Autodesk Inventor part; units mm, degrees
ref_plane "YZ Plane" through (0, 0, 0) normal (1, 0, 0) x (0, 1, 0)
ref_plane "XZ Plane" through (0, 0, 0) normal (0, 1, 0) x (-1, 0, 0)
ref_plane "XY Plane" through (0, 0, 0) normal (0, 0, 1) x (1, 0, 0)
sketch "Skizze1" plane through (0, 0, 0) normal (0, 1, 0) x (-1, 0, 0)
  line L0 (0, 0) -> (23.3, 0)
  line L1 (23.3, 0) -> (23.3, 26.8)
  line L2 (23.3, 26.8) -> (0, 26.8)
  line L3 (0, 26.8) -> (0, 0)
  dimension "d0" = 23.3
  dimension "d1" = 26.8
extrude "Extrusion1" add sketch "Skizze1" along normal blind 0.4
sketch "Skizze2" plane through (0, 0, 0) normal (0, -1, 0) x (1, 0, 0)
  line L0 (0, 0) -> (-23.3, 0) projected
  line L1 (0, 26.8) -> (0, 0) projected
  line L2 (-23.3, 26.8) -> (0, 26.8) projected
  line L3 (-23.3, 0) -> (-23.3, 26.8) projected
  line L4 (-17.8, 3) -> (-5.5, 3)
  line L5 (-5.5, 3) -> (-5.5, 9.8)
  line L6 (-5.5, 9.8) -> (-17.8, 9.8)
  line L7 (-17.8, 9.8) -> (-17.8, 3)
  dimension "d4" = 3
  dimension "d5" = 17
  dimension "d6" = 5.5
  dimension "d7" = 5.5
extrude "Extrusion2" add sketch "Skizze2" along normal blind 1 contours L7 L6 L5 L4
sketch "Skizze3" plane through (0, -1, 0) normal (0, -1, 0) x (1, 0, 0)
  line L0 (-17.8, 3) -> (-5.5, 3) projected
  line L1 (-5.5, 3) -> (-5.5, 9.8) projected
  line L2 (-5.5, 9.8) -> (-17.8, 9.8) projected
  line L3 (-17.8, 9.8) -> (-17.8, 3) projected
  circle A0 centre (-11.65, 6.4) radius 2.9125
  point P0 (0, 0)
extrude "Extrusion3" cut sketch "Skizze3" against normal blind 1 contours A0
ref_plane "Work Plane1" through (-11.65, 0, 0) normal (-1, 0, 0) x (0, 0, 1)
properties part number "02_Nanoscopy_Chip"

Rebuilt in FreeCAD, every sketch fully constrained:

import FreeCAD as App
import Part
import Sketcher

V = App.Vector
Q = App.Units.Quantity

doc = App.newDocument("Part")
body = doc.addObject("PartDesign::Body", "Body")

# Sketch on XZ plane
sketch1 = body.newObject("Sketcher::SketchObject", "Sketch")
sketch1.AttachmentSupport = (doc.getObject("XZ_Plane"), [""])
sketch1.MapMode = "FlatFace"
sketch1.addGeometry([
    Part.LineSegment(V(0, 26.8, 0), V(0, 0, 0)),
    Part.LineSegment(V(0, 0, 0), V(-23.3, 0, 0)),
    Part.LineSegment(V(-23.3, 0, 0), V(-23.3, 26.8, 0)),
    Part.LineSegment(V(-23.3, 26.8, 0), V(0, 26.8, 0)),
], False)
sketch1.addConstraint([
    Sketcher.Constraint("Coincident", 0, 2, 1, 1),
    Sketcher.Constraint("Coincident", 1, 2, 2, 1),
    Sketcher.Constraint("Coincident", 2, 2, 3, 1),
    Sketcher.Constraint("Coincident", 3, 2, 0, 1),
    Sketcher.Constraint("Vertical", 0),
    Sketcher.Constraint("Horizontal", 1),
    Sketcher.Constraint("Vertical", 2),
    Sketcher.Constraint("Horizontal", 3),
    Sketcher.Constraint("Coincident", 0, 2, -1, 1),
    Sketcher.Constraint("DistanceX", 1, 2, 1, 1, Q("23.3 mm")),
    Sketcher.Constraint("DistanceY", 0, 2, 0, 1, Q("26.8 mm")),
])
pad1 = body.newObject("PartDesign::Pad", "Pad")
pad1.Profile = sketch1
pad1.Length = 0.4
pad1.Reversed = True

# Sketch on XZ plane
sketch2 = body.newObject("Sketcher::SketchObject", "Sketch001")
sketch2.AttachmentSupport = (doc.getObject("XZ_Plane"), [""])
sketch2.MapMode = "FlatFace"
sketch2.addGeometry([
    Part.LineSegment(V(-17.8, 9.8, 0), V(-17.8, 3, 0)),
    Part.LineSegment(V(-17.8, 3, 0), V(-5.5, 3, 0)),
    Part.LineSegment(V(-5.5, 3, 0), V(-5.5, 9.8, 0)),
    Part.LineSegment(V(-5.5, 9.8, 0), V(-17.8, 9.8, 0)),
], False)
sketch2.addConstraint([
    Sketcher.Constraint("Coincident", 0, 2, 1, 1),
    Sketcher.Constraint("Coincident", 1, 2, 2, 1),
    Sketcher.Constraint("Coincident", 2, 2, 3, 1),
    Sketcher.Constraint("Coincident", 3, 2, 0, 1),
    Sketcher.Constraint("Vertical", 0),
    Sketcher.Constraint("Horizontal", 1),
    Sketcher.Constraint("Vertical", 2),
    Sketcher.Constraint("Horizontal", 3),
    Sketcher.Constraint("DistanceY", -1, 1, 0, 2, Q("3 mm")),
    Sketcher.Constraint("DistanceX", 1, 2, -1, 1, Q("5.5 mm")),
    Sketcher.Constraint("DistanceX", 1, 1, 1, 2, Q("12.3 mm")),
    Sketcher.Constraint("DistanceY", 0, 2, 0, 1, Q("6.8 mm")),
])
pad2 = body.newObject("PartDesign::Pad", "Pad001")
pad2.Profile = sketch2
pad2.Length = 1

# Sketch on XZ plane
sketch3 = body.newObject("Sketcher::SketchObject", "Sketch002")
sketch3.AttachmentSupport = (doc.getObject("XZ_Plane"), [""])
sketch3.MapMode = "FlatFace"
sketch3.AttachmentOffset = App.Placement(V(0, 0, 1), App.Rotation())
sketch3.addGeometry(Part.Circle(V(-11.65, 6.4, 0), V(0, 0, 1), 2.9125), False)
sketch3.addConstraint([
    Sketcher.Constraint("Diameter", 0, Q("5.825 mm")),
    Sketcher.Constraint("DistanceY", -1, 1, 0, 3, Q("6.4 mm")),
    Sketcher.Constraint("DistanceX", 0, 3, -1, 1, Q("11.65 mm")),
])
pocket1 = body.newObject("PartDesign::Pocket", "Pocket")
pocket1.Profile = sketch3
pocket1.Length = 1

doc.recompute()
